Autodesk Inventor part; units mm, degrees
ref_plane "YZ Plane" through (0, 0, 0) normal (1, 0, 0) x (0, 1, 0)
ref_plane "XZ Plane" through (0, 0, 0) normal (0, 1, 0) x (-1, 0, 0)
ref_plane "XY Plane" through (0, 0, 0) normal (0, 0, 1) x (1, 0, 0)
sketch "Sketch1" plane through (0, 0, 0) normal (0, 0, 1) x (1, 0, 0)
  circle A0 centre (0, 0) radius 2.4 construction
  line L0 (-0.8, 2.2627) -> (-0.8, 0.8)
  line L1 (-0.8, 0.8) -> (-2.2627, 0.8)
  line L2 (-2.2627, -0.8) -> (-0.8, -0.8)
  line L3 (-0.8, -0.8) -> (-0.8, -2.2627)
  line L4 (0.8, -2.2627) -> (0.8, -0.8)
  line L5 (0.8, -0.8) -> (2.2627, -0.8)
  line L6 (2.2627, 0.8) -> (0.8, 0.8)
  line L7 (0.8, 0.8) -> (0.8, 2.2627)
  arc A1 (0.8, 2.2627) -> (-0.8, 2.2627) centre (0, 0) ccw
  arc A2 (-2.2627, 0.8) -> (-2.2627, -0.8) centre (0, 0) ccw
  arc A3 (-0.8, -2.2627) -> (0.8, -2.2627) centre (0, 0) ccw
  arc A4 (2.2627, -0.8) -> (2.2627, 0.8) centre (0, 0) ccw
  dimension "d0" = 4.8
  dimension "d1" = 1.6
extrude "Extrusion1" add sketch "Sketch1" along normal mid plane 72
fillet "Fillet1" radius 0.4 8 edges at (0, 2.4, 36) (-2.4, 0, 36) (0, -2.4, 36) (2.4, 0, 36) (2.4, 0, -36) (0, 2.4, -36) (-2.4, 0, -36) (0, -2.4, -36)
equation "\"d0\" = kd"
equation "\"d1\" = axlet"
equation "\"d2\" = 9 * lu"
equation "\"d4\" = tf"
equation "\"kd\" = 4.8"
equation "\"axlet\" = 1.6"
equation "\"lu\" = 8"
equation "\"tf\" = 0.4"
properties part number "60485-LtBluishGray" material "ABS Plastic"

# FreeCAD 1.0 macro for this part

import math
import FreeCAD as App
import Part
import Sketcher

V = App.Vector
Q = App.Units.Quantity


def edges_at(feature, points):
    """Names of the edges that pass closest to the given points."""
    edges = feature.Shape.Edges
    near = lambda p: min(range(len(edges)), key=lambda i: edges[i].distToShape(Part.Vertex(*p))[0])
    return sorted({f"Edge{near(p) + 1}" for p in points})

doc = App.newDocument("Part")
body = doc.addObject("PartDesign::Body", "Body")

sketch1 = body.newObject("Sketcher::SketchObject", "Sketch")
sketch1.AttachmentSupport = (doc.getObject("XY_Plane"), [""])
sketch1.MapMode = "FlatFace"
sketch1.addGeometry(Part.ArcOfCircle(Part.Circle(V(0, 0, 0), V(0, 0, 1), 2.4), math.radians(71), math.radians(109)), False)
sketch1.addGeometry(Part.LineSegment(V(-0.8, 2.3, 0), V(-0.8, 0.8, 0)), False)
sketch1.addGeometry(Part.LineSegment(V(-0.8, 0.8, 0), V(-2.3, 0.8, 0)), False)
sketch1.addGeometry(Part.ArcOfCircle(Part.Circle(V(0, 0, 0), V(0, 0, 1), 2.4), math.radians(161), math.radians(199)), False)
sketch1.addGeometry(Part.LineSegment(V(-2.3, -0.8, 0), V(-0.8, -0.8, 0)), False)
sketch1.addGeometry(Part.LineSegment(V(-0.8, -0.8, 0), V(-0.8, -2.3, 0)), False)
sketch1.addGeometry(Part.ArcOfCircle(Part.Circle(V(0, 0, 0), V(0, 0, 1), 2.4), math.radians(-109), math.radians(-71)), False)
sketch1.addGeometry(Part.LineSegment(V(0.8, -2.3, 0), V(0.8, -0.8, 0)), False)
sketch1.addGeometry(Part.LineSegment(V(0.8, -0.8, 0), V(2.3, -0.8, 0)), False)
sketch1.addGeometry(Part.ArcOfCircle(Part.Circle(V(0, 0, 0), V(0, 0, 1), 2.4), math.radians(-19), math.radians(19)), False)
sketch1.addGeometry(Part.LineSegment(V(2.3, 0.8, 0), V(0.8, 0.8, 0)), False)
sketch1.addGeometry(Part.LineSegment(V(0.8, 0.8, 0), V(0.8, 2.3, 0)), False)
sketch1.addConstraint(Sketcher.Constraint("Coincident", 0, 2, 1, 1))
sketch1.addConstraint(Sketcher.Constraint("Coincident", 1, 2, 2, 1))
sketch1.addConstraint(Sketcher.Constraint("Coincident", 2, 2, 3, 1))
sketch1.addConstraint(Sketcher.Constraint("Coincident", 3, 2, 4, 1))
sketch1.addConstraint(Sketcher.Constraint("Coincident", 4, 2, 5, 1))
sketch1.addConstraint(Sketcher.Constraint("Coincident", 5, 2, 6, 1))
sketch1.addConstraint(Sketcher.Constraint("Coincident", 6, 2, 7, 1))
sketch1.addConstraint(Sketcher.Constraint("Coincident", 7, 2, 8, 1))
sketch1.addConstraint(Sketcher.Constraint("Coincident", 8, 2, 9, 1))
sketch1.addConstraint(Sketcher.Constraint("Coincident", 9, 2, 10, 1))
sketch1.addConstraint(Sketcher.Constraint("Coincident", 10, 2, 11, 1))
sketch1.addConstraint(Sketcher.Constraint("Coincident", 11, 2, 0, 1))
sketch1.addConstraint(Sketcher.Constraint("Vertical", 1))
sketch1.addConstraint(Sketcher.Constraint("Horizontal", 2))
sketch1.addConstraint(Sketcher.Constraint("Horizontal", 4))
sketch1.addConstraint(Sketcher.Constraint("Vertical", 5))
sketch1.addConstraint(Sketcher.Constraint("Vertical", 7))
sketch1.addConstraint(Sketcher.Constraint("Horizontal", 8))
sketch1.addConstraint(Sketcher.Constraint("Horizontal", 10))
sketch1.addConstraint(Sketcher.Constraint("Vertical", 11))
sketch1.addConstraint(Sketcher.Constraint("Coincident", 0, 3, -1, 1))
sketch1.addConstraint(Sketcher.Constraint("Coincident", 3, 3, -1, 1))
sketch1.addConstraint(Sketcher.Constraint("Coincident", 6, 3, -1, 1))
sketch1.addConstraint(Sketcher.Constraint("Coincident", 9, 3, -1, 1))
sketch1.addConstraint(Sketcher.Constraint("Equal", 0, 3))
sketch1.addConstraint(Sketcher.Constraint("Equal", 3, 6))
sketch1.addConstraint(Sketcher.Constraint("Equal", 6, 9))
sketch1.addConstraint(Sketcher.Constraint("Symmetric", 1, 2, 7, 2, -1, 1))
sketch1.addConstraint(Sketcher.Constraint("Symmetric", 4, 2, 10, 2, -1, 1))
sketch1.addConstraint(Sketcher.Constraint("Symmetric", 4, 2, 7, 2, -2))
sketch1.addConstraint(Sketcher.Constraint("Equal", 10, 1))
sketch1.addConstraint(Sketcher.Constraint("Radius", 0, Q("2.4 mm")))
sketch1.addConstraint(Sketcher.Constraint("DistanceY", 3, 2, 2, 2, Q("1.6 mm")))
pad1 = body.newObject("PartDesign::Pad", "Pad")
pad1.Profile = sketch1
pad1.Length = 72
pad1.Midplane = True
doc.recompute()

fillet = body.newObject("PartDesign::Fillet", "Fillet")
fillet.Base = (pad1, edges_at(pad1, [
    (0, 2.4, 36),
    (-2.4, 0, 36),
    (0, -2.4, 36),
    (2.4, 0, 36),
    (2.4, 0, -36),
    (0, 2.4, -36),
    (-2.4, 0, -36),
    (0, -2.4, -36),
]))
fillet.Radius = 0.4

doc.recompute()
